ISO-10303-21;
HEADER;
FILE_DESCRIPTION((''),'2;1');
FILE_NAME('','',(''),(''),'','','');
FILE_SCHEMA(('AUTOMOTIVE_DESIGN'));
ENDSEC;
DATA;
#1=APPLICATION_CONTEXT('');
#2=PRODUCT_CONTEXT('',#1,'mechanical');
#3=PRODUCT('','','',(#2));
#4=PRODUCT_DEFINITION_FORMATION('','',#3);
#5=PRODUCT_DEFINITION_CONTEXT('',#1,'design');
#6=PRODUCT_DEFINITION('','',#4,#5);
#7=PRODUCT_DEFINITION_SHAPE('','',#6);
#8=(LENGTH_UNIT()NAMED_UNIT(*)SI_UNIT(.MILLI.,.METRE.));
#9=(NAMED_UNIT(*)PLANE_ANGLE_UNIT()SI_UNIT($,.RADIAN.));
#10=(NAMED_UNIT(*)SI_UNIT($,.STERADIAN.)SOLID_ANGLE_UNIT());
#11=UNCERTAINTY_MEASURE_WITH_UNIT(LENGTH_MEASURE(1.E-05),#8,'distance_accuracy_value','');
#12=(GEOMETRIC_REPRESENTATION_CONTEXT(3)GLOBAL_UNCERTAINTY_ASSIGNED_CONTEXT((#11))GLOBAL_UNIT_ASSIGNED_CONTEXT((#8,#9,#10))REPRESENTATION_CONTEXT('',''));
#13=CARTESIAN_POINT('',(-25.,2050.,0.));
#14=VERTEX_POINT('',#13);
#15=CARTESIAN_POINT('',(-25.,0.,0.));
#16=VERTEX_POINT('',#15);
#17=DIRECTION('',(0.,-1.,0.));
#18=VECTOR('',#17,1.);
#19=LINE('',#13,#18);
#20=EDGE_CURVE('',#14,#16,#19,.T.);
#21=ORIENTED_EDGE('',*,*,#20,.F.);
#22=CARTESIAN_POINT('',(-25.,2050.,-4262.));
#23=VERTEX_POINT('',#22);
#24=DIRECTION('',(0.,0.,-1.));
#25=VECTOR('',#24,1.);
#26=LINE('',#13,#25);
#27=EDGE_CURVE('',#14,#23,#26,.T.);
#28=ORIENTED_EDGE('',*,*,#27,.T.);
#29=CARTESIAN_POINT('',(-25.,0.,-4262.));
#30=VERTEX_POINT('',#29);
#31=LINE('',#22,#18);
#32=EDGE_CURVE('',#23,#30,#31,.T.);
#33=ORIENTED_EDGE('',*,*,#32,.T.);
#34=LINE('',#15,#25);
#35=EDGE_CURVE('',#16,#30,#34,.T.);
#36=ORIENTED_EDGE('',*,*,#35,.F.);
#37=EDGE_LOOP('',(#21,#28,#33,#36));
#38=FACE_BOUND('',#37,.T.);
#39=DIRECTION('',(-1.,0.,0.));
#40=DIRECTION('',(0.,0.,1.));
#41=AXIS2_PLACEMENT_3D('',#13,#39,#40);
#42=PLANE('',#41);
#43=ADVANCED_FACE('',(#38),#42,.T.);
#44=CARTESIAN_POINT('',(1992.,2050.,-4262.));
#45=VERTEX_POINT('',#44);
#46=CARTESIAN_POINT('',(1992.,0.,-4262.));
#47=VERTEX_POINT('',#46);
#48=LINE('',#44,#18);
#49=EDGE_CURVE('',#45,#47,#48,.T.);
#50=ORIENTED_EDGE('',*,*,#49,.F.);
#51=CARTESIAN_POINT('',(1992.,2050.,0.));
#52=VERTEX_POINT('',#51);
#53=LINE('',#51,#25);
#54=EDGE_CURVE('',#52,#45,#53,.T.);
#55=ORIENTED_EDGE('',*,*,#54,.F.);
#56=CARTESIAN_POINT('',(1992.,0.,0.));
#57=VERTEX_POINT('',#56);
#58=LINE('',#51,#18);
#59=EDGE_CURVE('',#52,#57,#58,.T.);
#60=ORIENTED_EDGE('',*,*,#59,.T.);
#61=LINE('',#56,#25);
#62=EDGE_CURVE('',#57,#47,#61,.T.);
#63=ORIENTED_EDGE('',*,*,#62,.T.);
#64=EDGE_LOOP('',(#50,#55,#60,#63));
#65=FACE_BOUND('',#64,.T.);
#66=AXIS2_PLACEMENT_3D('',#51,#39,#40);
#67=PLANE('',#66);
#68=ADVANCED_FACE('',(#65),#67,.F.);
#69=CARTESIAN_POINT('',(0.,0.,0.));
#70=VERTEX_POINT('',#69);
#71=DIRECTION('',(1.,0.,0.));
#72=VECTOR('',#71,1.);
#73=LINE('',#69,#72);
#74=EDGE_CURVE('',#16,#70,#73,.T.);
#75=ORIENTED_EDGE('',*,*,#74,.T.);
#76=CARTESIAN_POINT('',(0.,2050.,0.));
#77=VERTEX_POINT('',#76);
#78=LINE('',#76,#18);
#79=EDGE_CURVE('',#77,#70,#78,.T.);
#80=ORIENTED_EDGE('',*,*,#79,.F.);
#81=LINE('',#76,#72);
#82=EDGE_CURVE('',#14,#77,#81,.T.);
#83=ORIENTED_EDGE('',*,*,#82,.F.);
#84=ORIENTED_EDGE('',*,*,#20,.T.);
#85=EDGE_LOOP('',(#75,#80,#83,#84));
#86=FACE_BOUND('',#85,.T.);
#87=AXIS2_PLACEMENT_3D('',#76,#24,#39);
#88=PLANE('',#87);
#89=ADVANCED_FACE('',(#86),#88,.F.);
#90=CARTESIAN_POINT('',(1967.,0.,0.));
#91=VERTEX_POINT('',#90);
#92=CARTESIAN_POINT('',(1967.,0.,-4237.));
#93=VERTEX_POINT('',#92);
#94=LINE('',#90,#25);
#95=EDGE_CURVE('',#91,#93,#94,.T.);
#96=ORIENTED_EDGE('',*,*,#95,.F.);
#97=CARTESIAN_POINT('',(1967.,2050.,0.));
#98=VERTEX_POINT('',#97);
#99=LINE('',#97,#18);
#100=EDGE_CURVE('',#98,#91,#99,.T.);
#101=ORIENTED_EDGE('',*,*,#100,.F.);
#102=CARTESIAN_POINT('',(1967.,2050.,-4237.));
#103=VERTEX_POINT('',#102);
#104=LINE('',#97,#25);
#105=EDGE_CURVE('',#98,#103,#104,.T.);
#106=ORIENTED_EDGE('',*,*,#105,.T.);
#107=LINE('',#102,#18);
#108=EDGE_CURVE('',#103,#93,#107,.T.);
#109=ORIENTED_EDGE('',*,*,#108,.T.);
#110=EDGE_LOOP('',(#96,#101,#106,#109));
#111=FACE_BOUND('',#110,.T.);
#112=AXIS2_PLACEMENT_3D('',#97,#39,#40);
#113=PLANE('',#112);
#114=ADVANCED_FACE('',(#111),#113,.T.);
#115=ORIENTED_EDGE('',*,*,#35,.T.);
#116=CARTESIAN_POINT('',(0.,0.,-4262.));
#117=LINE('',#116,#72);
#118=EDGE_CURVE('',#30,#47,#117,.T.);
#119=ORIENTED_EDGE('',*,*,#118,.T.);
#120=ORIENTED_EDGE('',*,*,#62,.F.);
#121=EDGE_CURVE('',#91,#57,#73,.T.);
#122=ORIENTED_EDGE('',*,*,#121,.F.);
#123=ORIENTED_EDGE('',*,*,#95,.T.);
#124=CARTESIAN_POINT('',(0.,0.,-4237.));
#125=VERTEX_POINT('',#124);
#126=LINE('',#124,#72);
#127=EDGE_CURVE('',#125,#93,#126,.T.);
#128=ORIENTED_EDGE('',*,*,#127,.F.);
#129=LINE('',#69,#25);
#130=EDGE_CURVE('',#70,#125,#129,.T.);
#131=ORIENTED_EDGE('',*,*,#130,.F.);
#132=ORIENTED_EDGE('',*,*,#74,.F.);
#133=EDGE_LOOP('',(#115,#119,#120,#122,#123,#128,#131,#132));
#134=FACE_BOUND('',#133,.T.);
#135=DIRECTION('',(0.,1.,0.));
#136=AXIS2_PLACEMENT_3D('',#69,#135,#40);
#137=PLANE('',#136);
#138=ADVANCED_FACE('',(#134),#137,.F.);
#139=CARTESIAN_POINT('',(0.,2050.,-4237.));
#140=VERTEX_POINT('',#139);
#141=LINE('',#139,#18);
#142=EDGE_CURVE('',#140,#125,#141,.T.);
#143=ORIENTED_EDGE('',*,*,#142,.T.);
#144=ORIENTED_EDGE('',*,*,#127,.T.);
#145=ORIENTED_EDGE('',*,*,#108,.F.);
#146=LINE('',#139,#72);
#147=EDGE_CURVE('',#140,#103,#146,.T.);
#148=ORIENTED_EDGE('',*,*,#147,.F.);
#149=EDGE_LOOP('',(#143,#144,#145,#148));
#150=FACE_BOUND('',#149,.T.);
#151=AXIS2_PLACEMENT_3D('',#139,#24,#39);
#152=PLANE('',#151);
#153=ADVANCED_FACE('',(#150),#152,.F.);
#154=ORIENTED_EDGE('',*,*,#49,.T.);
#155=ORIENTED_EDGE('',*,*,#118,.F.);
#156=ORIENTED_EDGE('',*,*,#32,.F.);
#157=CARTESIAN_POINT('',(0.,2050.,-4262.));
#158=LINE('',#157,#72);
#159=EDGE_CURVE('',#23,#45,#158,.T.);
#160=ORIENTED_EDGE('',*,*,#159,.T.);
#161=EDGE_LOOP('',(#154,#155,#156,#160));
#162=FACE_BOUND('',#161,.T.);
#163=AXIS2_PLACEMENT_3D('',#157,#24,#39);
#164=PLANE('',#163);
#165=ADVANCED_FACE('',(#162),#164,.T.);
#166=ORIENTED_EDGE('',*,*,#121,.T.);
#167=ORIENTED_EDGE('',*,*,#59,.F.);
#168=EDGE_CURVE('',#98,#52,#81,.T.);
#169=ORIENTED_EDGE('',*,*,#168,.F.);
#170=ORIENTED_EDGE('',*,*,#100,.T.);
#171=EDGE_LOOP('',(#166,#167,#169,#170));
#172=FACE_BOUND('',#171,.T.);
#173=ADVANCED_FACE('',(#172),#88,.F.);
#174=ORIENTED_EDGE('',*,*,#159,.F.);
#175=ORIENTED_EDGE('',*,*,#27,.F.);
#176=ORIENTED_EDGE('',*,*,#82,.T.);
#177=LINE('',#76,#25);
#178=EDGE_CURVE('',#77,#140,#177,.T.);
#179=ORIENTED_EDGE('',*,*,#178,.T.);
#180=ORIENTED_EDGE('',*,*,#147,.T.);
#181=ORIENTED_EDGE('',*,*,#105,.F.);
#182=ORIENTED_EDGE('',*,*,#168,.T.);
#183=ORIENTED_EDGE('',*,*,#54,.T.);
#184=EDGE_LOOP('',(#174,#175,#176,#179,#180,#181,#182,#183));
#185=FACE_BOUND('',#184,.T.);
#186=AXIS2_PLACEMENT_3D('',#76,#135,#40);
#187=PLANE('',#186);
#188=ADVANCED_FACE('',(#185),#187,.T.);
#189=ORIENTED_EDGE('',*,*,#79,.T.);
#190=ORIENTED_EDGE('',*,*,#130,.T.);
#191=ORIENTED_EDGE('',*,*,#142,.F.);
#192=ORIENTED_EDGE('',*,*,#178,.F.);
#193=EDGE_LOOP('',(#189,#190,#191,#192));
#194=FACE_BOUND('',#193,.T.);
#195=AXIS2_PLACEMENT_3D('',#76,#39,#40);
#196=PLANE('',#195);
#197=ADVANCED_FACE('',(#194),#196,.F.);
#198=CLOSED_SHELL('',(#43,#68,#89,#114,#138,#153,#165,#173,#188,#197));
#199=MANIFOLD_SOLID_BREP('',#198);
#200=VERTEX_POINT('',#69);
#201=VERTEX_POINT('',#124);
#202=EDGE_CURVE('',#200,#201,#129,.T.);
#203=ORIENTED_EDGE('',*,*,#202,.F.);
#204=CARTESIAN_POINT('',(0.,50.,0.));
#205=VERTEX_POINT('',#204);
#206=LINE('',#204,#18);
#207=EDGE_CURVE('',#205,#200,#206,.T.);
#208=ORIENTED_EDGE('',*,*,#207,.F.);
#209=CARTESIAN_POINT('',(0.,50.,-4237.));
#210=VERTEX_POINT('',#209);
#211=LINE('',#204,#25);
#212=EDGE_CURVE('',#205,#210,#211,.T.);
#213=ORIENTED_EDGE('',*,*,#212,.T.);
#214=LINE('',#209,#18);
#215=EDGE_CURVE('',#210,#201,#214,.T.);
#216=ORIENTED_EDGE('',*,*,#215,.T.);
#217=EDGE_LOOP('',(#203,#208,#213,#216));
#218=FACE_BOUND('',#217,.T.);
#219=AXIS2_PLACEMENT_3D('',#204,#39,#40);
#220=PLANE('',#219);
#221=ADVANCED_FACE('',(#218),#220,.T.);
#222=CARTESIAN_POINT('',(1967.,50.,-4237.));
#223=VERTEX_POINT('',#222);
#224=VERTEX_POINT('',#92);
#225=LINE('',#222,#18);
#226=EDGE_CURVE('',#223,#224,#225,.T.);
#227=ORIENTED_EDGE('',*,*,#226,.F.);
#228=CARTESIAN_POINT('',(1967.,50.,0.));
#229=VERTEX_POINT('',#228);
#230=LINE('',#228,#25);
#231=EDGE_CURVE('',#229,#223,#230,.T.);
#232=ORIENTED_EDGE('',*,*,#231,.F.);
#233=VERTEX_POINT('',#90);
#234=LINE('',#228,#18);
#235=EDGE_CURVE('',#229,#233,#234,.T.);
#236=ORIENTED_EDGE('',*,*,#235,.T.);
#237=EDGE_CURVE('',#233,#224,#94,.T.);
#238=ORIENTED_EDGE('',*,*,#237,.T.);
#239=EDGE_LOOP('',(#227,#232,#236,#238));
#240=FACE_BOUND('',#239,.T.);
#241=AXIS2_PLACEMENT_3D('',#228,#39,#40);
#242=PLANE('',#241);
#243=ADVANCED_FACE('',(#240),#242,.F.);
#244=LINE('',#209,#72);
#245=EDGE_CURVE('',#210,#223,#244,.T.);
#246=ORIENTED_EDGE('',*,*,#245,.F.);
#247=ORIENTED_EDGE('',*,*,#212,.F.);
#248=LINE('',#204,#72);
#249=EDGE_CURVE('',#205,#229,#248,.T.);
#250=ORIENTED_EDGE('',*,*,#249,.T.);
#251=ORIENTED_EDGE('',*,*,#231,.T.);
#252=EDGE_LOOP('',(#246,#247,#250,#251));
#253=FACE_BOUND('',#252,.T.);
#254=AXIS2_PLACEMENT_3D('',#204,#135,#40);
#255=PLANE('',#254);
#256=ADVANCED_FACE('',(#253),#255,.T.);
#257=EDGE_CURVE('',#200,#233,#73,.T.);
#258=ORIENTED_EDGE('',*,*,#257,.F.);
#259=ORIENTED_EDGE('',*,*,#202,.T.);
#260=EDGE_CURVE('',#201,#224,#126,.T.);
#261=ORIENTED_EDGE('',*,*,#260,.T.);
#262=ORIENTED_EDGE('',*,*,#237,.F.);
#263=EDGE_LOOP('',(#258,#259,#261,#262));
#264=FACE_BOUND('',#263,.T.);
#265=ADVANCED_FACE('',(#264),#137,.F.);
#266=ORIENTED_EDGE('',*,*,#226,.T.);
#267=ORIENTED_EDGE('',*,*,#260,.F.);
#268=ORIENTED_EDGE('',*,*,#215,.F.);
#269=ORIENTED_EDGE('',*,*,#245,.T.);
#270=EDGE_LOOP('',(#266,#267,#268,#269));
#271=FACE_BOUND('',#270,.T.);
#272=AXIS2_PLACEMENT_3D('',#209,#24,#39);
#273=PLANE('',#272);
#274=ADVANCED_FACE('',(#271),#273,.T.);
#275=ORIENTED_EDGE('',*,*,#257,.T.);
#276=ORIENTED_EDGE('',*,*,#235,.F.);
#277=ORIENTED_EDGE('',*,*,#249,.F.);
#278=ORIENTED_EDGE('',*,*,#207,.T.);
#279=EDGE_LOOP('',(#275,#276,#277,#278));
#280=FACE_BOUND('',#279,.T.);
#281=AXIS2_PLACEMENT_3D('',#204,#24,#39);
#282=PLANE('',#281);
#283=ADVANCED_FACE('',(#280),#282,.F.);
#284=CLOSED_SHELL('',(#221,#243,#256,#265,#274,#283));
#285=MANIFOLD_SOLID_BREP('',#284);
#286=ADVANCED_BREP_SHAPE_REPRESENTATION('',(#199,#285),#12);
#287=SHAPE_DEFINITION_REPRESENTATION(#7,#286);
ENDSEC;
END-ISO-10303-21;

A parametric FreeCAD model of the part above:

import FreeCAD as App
import Part
import Sketcher
Q = App.Units.Quantity


def add_polygon(sketch, points):
    """Adds a closed chain of lines whose ends are joined by coincident constraints."""
    first, n = sketch.GeometryCount, len(points)
    for a, b in zip(points, points[1:] + points[:1]):
        sketch.addGeometry(Part.LineSegment(App.Vector(*a, 0), App.Vector(*b, 0)), False)
    for i in range(n):
        sketch.addConstraint(Sketcher.Constraint("Coincident", first + i, 2, first + (i + 1) % n, 1))

doc = App.newDocument("Part")
body = doc.addObject("PartDesign::Body", "Body")

# Sketch on XZ plane
sketch1 = body.newObject("Sketcher::SketchObject", "Sketch")
sketch1.AttachmentSupport = (doc.getObject("XZ_Plane"), [""])
sketch1.MapMode = "FlatFace"
add_polygon(sketch1, [(0, -4237), (0, 0), (1967, 0), (1967, -4237)])  # lines 0-3
sketch1.addConstraint([
    Sketcher.Constraint("Vertical", 0),
    Sketcher.Constraint("Horizontal", 1),
    Sketcher.Constraint("Vertical", 2),
    Sketcher.Constraint("Horizontal", 3),
    Sketcher.Constraint("Coincident", 0, 2, -1, 1),
    Sketcher.Constraint("DistanceX", 1, 1, 1, 2, Q("1967 mm")),
    Sketcher.Constraint("DistanceY", 0, 1, 0, 2, Q("4237 mm")),
])
pad1 = body.newObject("PartDesign::Pad", "Pad")
pad1.Profile = sketch1
pad1.Length = 50
pad1.Reversed = True
body2 = doc.addObject("PartDesign::Body", "Body001")

# Sketch on XZ plane
sketch2 = body2.newObject("Sketcher::SketchObject", "Sketch001")
sketch2.AttachmentSupport = (doc.getObject("XZ_Plane001"), [""])
sketch2.MapMode = "FlatFace"
add_polygon(sketch2, [(1967, 0), (1992, 0), (1992, -4262), (-25, -4262), (-25, 0), (0, 0), (0, -4237), (1967, -4237)])  # lines 0-7
sketch2.addConstraint([
    Sketcher.Constraint("Horizontal", 0),
    Sketcher.Constraint("Vertical", 1),
    Sketcher.Constraint("Horizontal", 2),
    Sketcher.Constraint("Vertical", 3),
    Sketcher.Constraint("Horizontal", 4),
    Sketcher.Constraint("Vertical", 5),
    Sketcher.Constraint("Horizontal", 6),
    Sketcher.Constraint("Vertical", 7),
    Sketcher.Constraint("Coincident", 4, 2, -1, 1),
    Sketcher.Constraint("PointOnObject", 0, 2, -1),
    Sketcher.Constraint("Equal", 0, 4),
    Sketcher.Constraint("DistanceX", 0, 1, 0, 2, Q("25 mm")),
    Sketcher.Constraint("DistanceX", 2, 2, 2, 1, Q("2017 mm")),
    Sketcher.Constraint("DistanceY", 1, 2, 1, 1, Q("4262 mm")),
    Sketcher.Constraint("DistanceY", 5, 2, 5, 1, Q("4237 mm")),
])
pad2 = body2.newObject("PartDesign::Pad", "Pad001")
pad2.Profile = sketch2
pad2.Length = 2050
pad2.Reversed = True

doc.recompute()
